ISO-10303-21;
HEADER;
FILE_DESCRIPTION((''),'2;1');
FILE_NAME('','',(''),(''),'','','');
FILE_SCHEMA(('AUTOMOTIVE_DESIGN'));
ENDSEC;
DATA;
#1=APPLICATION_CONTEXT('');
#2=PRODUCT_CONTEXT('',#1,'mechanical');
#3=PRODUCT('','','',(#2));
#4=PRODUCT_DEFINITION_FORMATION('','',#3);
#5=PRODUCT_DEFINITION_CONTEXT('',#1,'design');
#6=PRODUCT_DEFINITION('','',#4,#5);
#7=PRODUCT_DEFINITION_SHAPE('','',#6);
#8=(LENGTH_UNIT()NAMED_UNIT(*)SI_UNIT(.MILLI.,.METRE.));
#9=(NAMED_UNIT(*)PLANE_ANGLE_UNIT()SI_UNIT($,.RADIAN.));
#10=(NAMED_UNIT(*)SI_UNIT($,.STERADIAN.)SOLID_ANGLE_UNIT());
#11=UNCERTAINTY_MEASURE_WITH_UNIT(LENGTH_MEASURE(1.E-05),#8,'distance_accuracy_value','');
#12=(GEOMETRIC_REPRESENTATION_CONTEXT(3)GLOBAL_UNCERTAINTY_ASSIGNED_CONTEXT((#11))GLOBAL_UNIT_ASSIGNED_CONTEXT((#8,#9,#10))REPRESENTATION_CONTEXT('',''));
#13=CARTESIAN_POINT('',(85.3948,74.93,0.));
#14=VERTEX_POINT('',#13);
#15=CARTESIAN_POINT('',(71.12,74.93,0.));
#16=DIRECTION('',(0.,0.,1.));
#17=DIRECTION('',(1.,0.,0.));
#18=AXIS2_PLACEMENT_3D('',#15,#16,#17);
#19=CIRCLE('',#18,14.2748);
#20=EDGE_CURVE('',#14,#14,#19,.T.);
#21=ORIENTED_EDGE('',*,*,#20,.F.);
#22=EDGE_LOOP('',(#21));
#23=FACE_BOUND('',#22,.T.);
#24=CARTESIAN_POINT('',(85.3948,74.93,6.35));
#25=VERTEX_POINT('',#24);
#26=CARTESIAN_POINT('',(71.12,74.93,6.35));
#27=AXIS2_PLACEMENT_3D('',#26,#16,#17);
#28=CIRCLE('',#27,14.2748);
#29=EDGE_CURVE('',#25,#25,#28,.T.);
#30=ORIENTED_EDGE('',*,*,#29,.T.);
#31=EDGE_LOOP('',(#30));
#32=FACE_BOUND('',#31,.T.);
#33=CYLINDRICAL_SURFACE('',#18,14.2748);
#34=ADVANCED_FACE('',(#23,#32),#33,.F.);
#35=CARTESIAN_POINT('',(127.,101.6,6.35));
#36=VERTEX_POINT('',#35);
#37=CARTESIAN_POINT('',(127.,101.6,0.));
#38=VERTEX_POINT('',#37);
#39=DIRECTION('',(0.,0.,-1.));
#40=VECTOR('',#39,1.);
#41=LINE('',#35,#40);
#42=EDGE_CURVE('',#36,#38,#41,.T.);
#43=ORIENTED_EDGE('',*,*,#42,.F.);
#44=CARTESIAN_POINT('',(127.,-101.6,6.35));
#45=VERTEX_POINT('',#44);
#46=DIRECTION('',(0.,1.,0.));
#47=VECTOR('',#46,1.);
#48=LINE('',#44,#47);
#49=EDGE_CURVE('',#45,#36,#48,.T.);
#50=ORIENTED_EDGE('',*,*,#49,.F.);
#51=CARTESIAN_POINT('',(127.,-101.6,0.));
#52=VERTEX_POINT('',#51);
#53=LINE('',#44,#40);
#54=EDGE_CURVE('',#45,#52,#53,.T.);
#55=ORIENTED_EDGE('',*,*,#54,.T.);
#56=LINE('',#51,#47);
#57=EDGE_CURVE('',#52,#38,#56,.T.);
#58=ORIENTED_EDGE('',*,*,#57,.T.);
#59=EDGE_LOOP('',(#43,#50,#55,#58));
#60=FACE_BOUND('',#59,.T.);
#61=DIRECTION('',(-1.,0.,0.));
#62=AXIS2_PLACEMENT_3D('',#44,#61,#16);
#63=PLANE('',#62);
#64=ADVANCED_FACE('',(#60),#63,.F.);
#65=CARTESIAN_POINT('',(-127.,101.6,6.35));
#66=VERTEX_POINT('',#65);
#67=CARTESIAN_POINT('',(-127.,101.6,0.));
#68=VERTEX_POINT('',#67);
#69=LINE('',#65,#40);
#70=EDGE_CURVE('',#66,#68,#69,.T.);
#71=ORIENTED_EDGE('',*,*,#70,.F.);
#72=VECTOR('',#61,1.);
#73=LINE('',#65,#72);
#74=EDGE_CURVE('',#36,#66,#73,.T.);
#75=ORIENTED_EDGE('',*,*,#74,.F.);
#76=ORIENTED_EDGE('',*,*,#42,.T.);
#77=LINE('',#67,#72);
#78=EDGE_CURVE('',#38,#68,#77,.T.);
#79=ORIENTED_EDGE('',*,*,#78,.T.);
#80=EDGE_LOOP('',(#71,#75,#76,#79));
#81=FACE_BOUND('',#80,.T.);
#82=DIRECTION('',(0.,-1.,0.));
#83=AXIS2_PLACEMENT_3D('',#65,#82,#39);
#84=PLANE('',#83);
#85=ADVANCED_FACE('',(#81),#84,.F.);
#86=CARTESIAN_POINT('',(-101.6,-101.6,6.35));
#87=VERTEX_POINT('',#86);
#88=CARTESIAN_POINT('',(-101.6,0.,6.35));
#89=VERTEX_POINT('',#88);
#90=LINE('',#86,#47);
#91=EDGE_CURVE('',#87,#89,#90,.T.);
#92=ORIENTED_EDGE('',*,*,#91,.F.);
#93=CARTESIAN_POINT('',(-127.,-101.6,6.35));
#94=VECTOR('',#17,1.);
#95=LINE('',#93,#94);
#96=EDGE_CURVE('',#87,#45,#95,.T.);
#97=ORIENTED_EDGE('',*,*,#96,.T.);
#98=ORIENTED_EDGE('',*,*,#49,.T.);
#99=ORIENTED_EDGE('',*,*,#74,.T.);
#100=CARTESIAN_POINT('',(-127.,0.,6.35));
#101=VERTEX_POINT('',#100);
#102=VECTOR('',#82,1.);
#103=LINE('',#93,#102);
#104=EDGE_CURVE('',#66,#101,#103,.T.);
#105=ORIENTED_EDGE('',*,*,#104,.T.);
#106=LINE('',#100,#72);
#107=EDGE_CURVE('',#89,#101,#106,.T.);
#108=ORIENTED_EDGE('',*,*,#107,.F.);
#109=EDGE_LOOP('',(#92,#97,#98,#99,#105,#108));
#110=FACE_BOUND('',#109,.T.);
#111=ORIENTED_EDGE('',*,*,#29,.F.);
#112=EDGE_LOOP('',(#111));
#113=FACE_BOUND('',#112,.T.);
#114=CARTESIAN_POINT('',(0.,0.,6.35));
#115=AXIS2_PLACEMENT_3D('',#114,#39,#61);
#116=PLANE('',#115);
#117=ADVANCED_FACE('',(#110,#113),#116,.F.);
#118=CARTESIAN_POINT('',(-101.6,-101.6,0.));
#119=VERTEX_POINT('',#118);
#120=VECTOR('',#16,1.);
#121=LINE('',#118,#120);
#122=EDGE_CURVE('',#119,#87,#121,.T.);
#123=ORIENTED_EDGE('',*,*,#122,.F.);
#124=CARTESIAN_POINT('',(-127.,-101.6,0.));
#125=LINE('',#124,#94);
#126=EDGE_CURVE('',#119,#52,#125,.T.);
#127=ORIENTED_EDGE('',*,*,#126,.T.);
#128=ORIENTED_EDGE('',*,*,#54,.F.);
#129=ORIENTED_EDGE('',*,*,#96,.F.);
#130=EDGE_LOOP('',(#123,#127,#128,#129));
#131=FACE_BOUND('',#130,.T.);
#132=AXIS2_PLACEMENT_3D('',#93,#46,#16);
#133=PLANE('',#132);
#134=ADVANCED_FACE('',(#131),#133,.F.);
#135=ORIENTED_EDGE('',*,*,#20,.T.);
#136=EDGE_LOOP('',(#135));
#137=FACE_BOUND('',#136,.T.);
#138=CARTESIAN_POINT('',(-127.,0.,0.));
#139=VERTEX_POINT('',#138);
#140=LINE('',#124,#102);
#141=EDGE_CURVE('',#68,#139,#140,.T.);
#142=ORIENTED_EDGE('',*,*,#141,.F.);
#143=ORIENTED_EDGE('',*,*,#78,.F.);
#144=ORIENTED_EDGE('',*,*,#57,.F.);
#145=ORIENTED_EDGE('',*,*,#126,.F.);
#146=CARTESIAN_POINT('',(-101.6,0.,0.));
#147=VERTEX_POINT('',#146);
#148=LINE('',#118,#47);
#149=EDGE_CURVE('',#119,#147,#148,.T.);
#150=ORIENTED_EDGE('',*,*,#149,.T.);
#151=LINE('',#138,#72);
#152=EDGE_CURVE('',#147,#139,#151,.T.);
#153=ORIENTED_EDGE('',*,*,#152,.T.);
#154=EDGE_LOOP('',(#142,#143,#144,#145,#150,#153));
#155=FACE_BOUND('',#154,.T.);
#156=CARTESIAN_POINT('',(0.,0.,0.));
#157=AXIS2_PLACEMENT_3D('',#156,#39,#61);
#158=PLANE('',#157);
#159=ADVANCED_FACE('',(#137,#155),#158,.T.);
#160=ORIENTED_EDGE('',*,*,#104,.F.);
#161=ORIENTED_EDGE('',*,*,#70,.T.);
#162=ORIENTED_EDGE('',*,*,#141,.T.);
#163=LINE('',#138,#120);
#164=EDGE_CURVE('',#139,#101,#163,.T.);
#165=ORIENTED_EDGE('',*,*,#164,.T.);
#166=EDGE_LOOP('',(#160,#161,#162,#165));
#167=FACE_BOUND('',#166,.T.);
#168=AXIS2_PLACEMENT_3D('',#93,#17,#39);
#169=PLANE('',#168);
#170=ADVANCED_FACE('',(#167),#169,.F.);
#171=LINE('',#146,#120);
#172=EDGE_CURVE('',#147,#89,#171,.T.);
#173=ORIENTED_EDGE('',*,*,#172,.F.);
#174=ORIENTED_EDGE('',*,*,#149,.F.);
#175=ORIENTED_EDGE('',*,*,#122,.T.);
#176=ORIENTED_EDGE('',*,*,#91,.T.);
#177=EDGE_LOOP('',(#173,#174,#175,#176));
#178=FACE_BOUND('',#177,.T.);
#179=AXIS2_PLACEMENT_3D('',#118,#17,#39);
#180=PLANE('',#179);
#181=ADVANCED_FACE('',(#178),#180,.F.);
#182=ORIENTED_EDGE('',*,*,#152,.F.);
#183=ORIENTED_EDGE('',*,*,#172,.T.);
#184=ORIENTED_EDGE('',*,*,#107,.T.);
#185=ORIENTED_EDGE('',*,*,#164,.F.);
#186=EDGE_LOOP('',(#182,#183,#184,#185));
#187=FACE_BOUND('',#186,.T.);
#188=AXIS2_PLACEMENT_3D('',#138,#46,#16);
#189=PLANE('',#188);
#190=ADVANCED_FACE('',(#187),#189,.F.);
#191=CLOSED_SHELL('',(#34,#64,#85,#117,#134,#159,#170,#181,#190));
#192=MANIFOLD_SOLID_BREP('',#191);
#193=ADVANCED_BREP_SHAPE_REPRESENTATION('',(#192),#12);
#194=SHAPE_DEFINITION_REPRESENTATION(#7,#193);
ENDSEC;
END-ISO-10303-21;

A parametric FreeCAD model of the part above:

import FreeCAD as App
import Part
import Sketcher
from FreeCAD import Vector
Q = App.Units.Quantity


def add_polygon(sketch, points):
    """Adds a closed chain of lines whose ends are joined by coincident constraints."""
    first, n = sketch.GeometryCount, len(points)
    for a, b in zip(points, points[1:] + points[:1]):
        sketch.addGeometry(Part.LineSegment(App.Vector(*a, 0), App.Vector(*b, 0)), False)
    for i in range(n):
        sketch.addConstraint(Sketcher.Constraint("Coincident", first + i, 2, first + (i + 1) % n, 1))

doc = App.newDocument("Part")
body = doc.addObject("PartDesign::Body", "Body")

sketch1 = body.newObject("Sketcher::SketchObject", "Sketch")
sketch1.AttachmentSupport = (doc.getObject("XY_Plane"), [""])
sketch1.MapMode = "FlatFace"
add_polygon(sketch1, [(-127, 102), (-127, -102), (127, -102), (127, 102)])
sketch1.addConstraint([
    Sketcher.Constraint("Vertical", 0),
    Sketcher.Constraint("Horizontal", 1),
    Sketcher.Constraint("Vertical", 2),
    Sketcher.Constraint("Horizontal", 3),
    Sketcher.Constraint("Symmetric", 0, 2, 2, 2, -1, 1),
    Sketcher.Constraint("DistanceX", 1, 1, 1, 2, Q("10 in")),
    Sketcher.Constraint("DistanceY", 0, 2, 0, 1, Q("8 in")),
])
pad1 = body.newObject("PartDesign::Pad", "Pad")
pad1.Profile = sketch1
pad1.Length = Q("0.25 in")

sketch2 = body.newObject("Sketcher::SketchObject", "Sketch001")
sketch2.AttachmentSupport = (doc.getObject("XY_Plane"), [""])
sketch2.MapMode = "FlatFace"
sketch2.AttachmentOffset = App.Placement(Vector(0, 0, 0.25 * 25.4), App.Rotation())
sketch2.addGeometry(Part.Circle(Vector(71, 75, 0), Vector(0, 0, 1), 14), False)
add_polygon(sketch2, [(-127, 0), (-127, -102), (-102, -102), (-102, 0)])
sketch2.addConstraint([
    Sketcher.Constraint("Vertical", 1),
    Sketcher.Constraint("Horizontal", 2),
    Sketcher.Constraint("Vertical", 3),
    Sketcher.Constraint("Horizontal", 4),
    Sketcher.Constraint("PointOnObject", 3, 2, -1),
    Sketcher.Constraint("DistanceX", 2, 1, 2, 2, Q("1 in")),
    Sketcher.Constraint("DistanceY", 1, 2, 1, 1, Q("4 in")),
    Sketcher.Constraint("Diameter", 0, Q("1.124 in")),
    Sketcher.Constraint("DistanceX", 1, 2, -1, 1, Q("5 in")),
    Sketcher.Constraint("DistanceX", -1, 1, 0, 3, Q("2.8 in")),
    Sketcher.Constraint("DistanceY", -1, 1, 0, 3, Q("2.95 in")),
])
pocket1 = body.newObject("PartDesign::Pocket", "Pocket")
pocket1.Profile = sketch2
pocket1.Type = "ThroughAll"

doc.recompute()
